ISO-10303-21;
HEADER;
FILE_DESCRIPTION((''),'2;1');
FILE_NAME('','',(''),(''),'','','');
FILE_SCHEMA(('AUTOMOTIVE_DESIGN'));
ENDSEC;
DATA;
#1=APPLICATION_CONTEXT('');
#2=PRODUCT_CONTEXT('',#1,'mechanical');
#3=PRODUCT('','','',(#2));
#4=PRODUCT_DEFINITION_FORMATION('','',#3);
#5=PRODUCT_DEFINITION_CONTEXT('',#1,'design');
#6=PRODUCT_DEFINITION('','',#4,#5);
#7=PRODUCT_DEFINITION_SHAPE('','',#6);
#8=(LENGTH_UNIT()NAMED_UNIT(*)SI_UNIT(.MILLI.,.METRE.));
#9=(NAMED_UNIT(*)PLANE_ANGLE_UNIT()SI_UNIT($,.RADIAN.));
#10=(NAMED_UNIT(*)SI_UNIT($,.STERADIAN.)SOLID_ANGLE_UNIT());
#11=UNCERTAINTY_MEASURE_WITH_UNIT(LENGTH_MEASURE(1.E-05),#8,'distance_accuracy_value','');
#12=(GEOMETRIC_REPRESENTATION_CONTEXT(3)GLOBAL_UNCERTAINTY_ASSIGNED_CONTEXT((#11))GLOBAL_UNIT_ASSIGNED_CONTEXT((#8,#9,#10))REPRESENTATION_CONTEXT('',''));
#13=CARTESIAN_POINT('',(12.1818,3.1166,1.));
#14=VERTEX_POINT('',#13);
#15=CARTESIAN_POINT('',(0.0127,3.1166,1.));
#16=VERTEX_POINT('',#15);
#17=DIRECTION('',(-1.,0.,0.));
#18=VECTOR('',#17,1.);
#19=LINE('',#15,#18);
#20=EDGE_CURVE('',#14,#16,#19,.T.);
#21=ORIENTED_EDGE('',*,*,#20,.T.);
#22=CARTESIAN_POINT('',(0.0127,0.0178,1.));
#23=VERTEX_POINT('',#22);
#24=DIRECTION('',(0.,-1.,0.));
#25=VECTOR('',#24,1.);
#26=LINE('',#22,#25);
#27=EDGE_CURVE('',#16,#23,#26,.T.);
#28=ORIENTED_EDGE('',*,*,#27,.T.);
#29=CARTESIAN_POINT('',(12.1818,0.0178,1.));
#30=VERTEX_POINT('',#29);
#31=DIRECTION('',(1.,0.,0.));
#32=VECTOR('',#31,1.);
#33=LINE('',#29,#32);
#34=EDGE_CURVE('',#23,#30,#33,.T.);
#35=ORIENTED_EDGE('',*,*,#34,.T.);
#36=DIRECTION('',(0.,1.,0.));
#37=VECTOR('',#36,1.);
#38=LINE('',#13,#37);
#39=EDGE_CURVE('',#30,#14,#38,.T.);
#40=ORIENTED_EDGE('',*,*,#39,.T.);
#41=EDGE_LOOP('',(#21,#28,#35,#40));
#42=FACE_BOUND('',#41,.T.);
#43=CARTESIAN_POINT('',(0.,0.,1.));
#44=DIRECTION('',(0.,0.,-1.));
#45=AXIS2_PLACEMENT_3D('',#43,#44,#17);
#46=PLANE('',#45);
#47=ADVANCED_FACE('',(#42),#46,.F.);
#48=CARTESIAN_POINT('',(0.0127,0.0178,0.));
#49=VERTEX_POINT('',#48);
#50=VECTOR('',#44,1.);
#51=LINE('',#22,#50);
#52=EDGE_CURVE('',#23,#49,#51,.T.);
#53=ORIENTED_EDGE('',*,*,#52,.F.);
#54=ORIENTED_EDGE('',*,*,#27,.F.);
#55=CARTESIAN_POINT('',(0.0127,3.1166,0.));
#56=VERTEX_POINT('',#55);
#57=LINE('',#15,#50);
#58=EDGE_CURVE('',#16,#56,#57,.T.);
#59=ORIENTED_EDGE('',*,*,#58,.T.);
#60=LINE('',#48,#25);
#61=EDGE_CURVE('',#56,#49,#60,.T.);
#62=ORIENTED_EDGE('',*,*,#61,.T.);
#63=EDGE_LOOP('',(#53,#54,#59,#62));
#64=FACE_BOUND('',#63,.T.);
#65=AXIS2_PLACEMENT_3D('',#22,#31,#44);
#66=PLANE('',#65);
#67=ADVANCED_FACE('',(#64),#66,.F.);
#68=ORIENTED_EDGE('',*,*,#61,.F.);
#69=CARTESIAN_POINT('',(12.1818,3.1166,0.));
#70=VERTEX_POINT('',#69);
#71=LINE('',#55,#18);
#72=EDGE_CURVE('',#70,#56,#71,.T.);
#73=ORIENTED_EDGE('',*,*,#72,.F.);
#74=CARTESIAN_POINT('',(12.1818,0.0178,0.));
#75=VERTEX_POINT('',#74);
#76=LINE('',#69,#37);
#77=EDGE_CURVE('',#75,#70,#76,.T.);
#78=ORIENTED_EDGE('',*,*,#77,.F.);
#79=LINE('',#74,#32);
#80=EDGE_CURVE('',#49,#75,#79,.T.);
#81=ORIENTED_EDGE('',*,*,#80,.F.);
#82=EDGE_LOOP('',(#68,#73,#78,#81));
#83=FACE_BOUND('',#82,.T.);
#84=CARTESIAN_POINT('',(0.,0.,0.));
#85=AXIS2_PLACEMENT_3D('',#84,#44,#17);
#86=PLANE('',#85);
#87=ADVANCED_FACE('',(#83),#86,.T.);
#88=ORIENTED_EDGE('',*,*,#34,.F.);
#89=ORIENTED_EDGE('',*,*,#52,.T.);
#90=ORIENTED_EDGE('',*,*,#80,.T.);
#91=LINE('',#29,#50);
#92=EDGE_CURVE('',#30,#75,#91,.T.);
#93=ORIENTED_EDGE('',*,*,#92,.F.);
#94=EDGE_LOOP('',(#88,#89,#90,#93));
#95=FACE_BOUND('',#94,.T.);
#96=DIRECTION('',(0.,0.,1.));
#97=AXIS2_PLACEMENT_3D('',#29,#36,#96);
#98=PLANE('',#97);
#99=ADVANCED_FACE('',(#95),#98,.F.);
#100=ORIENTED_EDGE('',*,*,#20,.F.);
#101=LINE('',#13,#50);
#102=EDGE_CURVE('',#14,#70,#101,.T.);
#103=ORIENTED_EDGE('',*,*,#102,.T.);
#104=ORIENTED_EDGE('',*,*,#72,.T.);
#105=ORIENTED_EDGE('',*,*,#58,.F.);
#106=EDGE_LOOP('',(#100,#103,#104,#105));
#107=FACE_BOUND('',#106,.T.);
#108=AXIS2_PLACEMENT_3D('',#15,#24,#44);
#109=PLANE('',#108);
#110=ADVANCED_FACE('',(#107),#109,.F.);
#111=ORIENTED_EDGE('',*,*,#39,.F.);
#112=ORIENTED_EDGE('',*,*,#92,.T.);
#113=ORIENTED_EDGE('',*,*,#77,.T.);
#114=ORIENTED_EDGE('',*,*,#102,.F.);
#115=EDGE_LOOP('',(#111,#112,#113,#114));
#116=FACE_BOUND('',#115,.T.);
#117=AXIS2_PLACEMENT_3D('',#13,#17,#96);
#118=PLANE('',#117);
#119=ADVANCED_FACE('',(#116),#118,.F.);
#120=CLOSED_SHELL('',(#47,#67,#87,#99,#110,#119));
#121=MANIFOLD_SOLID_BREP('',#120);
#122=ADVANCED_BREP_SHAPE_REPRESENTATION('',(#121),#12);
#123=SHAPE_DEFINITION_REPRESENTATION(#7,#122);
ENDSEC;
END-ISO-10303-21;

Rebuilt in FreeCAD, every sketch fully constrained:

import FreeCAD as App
import Part
import Sketcher
from FreeCAD import Vector


def add_polygon(sketch, points):
    """Adds a closed chain of lines whose ends are joined by coincident constraints."""
    first, n = sketch.GeometryCount, len(points)
    for a, b in zip(points, points[1:] + points[:1]):
        sketch.addGeometry(Part.LineSegment(App.Vector(*a, 0), App.Vector(*b, 0)), False)
    for i in range(n):
        sketch.addConstraint(Sketcher.Constraint("Coincident", first + i, 2, first + (i + 1) % n, 1))

doc = App.newDocument("Part")
body = doc.addObject("PartDesign::Body", "Body")

# Sketch on XY plane
sketch1 = body.newObject("Sketcher::SketchObject", "Sketch")
sketch1.AttachmentSupport = (doc.getObject("XY_Plane"), [""])
sketch1.MapMode = "FlatFace"
add_polygon(sketch1, [(0, 3.1), (0, 0), (12.2, 0), (12.2, 3.1)])  # lines 0-3
sketch1.addConstraint([
    Sketcher.Constraint("Vertical", 0),
    Sketcher.Constraint("Horizontal", 1),
    Sketcher.Constraint("Vertical", 2),
    Sketcher.Constraint("Horizontal", 3),
    Sketcher.Constraint("DistanceX", 1, 1, 1, 2, 12.1691),
    Sketcher.Constraint("DistanceY", 0, 2, 0, 1, 3.0988),
    Sketcher.Constraint("DistanceX", -1, 1, 0, 2, 0.0127),
    Sketcher.Constraint("DistanceY", -1, 1, 0, 2, 0.0178),
])
pad1 = body.newObject("PartDesign::Pad", "Pad")
pad1.Profile = sketch1
pad1.Length = 1

doc.recompute()
